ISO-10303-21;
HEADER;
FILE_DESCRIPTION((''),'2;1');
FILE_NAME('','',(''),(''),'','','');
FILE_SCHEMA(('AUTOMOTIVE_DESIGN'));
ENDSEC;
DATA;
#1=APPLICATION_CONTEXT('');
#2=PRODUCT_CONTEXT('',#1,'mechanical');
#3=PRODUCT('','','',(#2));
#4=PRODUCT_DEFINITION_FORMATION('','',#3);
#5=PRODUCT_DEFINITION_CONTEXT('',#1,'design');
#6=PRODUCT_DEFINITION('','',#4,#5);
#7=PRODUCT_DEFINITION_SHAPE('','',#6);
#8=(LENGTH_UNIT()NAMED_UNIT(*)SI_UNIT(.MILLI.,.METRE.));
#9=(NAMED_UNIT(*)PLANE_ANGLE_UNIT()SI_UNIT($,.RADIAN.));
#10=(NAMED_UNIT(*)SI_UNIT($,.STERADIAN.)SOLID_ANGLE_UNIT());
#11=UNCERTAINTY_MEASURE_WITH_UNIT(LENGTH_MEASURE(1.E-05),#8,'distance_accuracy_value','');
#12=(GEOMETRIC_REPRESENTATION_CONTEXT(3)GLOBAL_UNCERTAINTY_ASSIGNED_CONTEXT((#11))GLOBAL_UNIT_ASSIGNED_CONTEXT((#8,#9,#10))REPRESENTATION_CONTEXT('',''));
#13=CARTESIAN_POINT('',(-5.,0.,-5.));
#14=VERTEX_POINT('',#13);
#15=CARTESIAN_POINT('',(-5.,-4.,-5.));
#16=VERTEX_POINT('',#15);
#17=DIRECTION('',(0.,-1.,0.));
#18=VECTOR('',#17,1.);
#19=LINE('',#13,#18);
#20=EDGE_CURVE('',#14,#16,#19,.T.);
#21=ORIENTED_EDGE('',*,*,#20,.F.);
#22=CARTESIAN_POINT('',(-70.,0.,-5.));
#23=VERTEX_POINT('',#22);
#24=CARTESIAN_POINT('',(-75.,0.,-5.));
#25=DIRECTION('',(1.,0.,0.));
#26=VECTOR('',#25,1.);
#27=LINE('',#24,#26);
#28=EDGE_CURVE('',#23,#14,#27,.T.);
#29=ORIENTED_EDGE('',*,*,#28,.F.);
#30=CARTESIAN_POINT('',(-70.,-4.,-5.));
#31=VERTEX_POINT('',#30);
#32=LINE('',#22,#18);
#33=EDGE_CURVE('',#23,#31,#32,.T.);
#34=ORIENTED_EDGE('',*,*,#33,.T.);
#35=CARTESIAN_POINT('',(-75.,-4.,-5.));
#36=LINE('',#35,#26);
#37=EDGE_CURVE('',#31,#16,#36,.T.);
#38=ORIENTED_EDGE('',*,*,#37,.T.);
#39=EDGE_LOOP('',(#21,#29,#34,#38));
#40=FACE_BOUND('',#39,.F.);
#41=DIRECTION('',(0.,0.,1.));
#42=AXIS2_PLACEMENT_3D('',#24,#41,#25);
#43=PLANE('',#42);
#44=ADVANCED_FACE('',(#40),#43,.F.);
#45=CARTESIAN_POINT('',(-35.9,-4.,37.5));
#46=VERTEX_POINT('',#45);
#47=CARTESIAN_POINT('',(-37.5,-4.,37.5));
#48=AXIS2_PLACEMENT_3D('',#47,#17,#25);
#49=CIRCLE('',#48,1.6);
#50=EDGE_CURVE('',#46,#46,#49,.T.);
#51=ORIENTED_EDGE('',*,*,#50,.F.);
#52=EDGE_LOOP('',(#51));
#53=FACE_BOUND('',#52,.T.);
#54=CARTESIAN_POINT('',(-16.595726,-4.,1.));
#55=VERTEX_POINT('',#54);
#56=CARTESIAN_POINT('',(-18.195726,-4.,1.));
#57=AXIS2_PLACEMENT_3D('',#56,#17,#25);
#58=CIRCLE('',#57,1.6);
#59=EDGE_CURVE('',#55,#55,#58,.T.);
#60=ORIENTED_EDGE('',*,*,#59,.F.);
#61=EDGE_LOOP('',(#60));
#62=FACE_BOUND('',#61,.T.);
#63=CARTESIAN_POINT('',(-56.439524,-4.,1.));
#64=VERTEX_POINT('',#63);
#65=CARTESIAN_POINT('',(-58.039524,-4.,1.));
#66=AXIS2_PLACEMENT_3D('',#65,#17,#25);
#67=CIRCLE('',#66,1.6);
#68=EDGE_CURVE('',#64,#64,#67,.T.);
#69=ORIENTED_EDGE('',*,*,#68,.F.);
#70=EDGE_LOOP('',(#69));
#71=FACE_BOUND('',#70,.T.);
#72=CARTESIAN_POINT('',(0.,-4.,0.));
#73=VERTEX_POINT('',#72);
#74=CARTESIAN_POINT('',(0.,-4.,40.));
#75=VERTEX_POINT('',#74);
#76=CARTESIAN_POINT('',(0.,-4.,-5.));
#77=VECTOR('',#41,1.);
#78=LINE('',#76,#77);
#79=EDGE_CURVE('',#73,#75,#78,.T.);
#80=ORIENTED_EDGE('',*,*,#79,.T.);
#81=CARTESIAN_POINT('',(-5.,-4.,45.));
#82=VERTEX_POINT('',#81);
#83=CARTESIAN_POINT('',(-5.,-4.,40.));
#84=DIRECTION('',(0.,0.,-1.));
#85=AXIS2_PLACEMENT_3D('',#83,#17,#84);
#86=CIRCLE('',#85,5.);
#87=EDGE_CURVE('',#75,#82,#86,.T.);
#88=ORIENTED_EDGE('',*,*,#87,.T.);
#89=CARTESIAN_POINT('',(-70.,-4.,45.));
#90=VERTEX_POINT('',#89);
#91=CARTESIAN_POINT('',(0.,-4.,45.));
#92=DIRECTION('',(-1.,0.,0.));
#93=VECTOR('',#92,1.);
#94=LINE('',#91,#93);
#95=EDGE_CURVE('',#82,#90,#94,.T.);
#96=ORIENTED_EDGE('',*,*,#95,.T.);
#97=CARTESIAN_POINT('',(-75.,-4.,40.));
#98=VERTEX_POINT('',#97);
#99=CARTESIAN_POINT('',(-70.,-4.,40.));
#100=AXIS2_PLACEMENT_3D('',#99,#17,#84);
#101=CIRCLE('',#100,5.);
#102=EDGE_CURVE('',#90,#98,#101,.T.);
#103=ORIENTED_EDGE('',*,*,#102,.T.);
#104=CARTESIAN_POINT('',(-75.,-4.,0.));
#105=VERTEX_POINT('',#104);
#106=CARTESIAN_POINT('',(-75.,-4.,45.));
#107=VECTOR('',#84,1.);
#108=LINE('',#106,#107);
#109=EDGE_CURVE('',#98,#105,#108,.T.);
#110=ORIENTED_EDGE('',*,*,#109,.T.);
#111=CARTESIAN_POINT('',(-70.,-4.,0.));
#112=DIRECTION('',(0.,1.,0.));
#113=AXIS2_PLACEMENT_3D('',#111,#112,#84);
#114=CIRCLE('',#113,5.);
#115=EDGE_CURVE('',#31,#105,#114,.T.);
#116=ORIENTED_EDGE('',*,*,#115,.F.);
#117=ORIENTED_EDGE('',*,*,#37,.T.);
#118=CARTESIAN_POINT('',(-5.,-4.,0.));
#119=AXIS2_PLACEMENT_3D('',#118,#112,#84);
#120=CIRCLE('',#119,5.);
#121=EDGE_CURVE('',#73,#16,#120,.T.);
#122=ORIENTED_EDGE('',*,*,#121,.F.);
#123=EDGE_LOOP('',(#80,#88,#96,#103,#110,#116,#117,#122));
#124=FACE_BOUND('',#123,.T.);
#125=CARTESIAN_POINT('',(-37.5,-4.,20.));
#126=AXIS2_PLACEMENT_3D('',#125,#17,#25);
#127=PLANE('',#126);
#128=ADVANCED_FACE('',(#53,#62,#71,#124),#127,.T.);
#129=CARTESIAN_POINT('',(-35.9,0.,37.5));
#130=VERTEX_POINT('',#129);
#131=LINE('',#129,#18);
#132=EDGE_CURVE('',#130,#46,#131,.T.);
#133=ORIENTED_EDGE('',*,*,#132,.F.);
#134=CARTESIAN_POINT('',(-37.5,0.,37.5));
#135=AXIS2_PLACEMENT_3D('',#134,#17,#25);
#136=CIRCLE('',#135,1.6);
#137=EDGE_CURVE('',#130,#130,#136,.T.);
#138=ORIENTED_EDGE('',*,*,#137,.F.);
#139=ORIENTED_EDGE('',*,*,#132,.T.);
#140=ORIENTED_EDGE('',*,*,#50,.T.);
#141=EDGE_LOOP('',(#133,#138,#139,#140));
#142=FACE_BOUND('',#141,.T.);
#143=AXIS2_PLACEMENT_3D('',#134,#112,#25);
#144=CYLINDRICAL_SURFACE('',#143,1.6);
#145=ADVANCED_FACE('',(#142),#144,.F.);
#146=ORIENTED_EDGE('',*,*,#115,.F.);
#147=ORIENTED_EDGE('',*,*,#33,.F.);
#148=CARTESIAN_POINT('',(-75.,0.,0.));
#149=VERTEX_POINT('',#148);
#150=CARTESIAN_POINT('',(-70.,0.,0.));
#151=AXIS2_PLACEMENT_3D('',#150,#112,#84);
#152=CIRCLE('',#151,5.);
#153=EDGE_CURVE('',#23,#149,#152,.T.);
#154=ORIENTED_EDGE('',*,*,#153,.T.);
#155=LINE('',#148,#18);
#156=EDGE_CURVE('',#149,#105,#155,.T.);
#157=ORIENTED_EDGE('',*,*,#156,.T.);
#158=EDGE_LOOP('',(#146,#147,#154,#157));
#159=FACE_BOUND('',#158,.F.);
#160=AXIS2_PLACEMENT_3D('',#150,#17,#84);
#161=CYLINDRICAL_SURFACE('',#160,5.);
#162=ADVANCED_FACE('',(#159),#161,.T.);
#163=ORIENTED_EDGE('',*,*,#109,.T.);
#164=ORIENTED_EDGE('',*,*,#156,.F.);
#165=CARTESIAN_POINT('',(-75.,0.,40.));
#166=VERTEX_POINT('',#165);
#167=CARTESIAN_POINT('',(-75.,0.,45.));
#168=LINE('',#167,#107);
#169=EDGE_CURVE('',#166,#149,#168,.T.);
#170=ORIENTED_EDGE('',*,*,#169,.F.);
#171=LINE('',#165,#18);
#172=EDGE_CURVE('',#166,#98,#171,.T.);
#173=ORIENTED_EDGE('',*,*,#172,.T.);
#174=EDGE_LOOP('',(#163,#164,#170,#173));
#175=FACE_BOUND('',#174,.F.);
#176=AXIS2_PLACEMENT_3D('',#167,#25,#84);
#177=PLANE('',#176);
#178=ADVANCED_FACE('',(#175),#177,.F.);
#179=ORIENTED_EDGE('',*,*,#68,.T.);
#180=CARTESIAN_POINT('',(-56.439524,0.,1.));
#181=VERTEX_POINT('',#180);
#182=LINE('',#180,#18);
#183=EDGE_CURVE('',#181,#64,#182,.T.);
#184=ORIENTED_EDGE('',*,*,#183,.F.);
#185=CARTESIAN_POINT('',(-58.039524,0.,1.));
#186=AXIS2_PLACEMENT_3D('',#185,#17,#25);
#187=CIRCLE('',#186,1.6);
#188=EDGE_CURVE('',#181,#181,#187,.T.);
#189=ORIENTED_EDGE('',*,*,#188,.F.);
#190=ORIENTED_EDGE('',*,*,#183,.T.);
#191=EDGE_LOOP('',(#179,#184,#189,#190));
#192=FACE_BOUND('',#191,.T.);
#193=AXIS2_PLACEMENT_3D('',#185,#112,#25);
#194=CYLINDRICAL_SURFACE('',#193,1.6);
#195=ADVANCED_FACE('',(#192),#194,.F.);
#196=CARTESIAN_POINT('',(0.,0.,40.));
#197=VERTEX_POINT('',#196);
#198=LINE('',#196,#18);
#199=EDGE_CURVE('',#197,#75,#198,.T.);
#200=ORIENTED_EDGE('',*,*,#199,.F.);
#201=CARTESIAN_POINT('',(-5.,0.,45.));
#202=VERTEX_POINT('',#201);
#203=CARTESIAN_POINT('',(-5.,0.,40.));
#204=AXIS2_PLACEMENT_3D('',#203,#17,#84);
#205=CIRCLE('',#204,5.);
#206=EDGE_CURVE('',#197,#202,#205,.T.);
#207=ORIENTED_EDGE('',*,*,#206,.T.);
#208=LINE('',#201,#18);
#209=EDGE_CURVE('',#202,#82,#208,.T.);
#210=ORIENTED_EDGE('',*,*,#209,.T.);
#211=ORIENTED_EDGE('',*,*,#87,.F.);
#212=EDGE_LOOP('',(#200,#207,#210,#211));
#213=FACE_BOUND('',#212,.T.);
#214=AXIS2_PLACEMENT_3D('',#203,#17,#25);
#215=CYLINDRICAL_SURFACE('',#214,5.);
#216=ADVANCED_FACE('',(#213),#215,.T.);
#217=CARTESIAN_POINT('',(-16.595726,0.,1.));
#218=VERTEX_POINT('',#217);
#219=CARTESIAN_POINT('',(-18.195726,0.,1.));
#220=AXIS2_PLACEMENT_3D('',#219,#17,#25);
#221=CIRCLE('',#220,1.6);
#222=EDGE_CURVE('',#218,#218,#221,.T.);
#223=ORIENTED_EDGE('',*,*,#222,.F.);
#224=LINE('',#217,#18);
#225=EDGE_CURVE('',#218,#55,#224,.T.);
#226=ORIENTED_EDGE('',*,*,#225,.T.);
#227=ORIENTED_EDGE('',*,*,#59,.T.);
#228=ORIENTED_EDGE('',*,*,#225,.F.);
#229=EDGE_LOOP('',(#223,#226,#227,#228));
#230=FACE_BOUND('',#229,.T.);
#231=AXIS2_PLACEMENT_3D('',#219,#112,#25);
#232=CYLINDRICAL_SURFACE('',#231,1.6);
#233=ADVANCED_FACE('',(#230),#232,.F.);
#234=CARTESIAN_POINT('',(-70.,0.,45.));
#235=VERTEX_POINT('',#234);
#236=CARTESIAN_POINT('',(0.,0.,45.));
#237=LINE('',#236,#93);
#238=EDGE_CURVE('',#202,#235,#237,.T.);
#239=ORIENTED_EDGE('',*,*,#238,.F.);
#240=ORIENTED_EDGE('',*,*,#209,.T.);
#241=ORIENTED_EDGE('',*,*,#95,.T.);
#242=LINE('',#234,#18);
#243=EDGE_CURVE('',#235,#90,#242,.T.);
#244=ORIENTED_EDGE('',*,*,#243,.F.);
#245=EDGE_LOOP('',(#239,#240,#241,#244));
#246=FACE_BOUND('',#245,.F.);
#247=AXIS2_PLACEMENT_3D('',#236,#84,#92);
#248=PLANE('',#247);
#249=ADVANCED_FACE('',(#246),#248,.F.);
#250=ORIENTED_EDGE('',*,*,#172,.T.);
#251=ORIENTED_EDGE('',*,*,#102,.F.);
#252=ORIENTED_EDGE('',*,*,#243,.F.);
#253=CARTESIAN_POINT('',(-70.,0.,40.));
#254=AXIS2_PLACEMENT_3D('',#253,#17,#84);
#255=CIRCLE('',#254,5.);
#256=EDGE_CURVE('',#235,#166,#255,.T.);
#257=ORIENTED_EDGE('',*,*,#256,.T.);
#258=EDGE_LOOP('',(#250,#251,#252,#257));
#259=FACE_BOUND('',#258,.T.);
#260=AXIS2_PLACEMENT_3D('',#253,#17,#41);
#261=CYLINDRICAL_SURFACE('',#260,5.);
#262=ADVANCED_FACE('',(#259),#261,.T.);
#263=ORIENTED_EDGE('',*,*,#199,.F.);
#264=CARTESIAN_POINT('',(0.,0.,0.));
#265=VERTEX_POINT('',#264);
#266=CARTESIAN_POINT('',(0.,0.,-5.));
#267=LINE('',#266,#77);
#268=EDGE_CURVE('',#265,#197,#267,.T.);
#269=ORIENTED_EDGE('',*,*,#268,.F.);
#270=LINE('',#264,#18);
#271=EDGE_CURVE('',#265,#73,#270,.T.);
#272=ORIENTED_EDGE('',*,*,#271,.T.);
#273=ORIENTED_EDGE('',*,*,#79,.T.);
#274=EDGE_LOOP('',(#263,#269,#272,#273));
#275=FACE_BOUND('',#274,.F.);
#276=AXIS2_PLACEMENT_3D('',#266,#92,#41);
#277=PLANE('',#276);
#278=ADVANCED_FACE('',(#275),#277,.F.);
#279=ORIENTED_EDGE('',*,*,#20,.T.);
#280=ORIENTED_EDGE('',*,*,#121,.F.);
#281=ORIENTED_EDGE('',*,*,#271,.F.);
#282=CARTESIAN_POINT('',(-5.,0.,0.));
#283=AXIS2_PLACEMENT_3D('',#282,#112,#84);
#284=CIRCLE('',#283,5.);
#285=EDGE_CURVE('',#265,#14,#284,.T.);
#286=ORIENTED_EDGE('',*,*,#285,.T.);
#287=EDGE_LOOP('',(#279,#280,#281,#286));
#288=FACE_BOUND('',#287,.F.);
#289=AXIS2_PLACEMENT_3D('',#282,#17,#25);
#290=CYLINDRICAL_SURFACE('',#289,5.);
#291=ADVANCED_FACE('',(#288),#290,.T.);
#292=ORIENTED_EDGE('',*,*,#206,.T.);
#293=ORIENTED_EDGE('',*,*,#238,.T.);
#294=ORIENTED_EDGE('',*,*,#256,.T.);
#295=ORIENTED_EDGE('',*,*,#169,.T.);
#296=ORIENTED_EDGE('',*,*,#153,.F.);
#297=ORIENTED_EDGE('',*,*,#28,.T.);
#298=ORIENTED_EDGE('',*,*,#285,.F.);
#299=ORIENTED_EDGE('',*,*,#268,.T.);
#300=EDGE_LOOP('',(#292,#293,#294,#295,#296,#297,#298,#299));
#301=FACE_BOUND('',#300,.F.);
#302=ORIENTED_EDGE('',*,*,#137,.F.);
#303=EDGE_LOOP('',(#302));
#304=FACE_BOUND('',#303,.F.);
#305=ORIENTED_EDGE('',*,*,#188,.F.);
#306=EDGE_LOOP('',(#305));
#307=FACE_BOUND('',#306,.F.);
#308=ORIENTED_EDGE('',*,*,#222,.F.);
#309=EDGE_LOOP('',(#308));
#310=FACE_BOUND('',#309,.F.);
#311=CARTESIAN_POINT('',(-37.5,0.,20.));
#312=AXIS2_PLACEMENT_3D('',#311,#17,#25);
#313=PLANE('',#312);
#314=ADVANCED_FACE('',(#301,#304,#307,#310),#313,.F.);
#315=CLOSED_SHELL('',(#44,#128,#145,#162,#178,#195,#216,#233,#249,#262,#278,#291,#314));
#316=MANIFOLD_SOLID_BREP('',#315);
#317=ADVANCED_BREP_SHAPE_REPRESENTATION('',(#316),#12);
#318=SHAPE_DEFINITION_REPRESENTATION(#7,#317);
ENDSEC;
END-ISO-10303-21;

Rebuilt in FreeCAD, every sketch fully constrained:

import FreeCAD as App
import Part
import Sketcher
from FreeCAD import Vector
Q = App.Units.Quantity


def edges_at(feature, points):
    """Names of the edges that pass closest to the given points."""
    edges = feature.Shape.Edges
    near = lambda p: min(range(len(edges)), key=lambda i: edges[i].distToShape(Part.Vertex(*p))[0])
    return sorted({f"Edge{near(p) + 1}" for p in points})


def add_polygon(sketch, points):
    """Adds a closed chain of lines whose ends are joined by coincident constraints."""
    first, n = sketch.GeometryCount, len(points)
    for a, b in zip(points, points[1:] + points[:1]):
        sketch.addGeometry(Part.LineSegment(App.Vector(*a, 0), App.Vector(*b, 0)), False)
    for i in range(n):
        sketch.addConstraint(Sketcher.Constraint("Coincident", first + i, 2, first + (i + 1) % n, 1))

doc = App.newDocument("Part")
body = doc.addObject("PartDesign::Body", "Body")

# Sketch on XZ plane
sketch1 = body.newObject("Sketcher::SketchObject", "Sketch")
sketch1.AttachmentSupport = (doc.getObject("XZ_Plane"), [""])
sketch1.MapMode = "FlatFace"
add_polygon(sketch1, [(0, -5), (0, 45), (-75, 45), (-75, -5)])  # lines 0-3
sketch1.addGeometry(Part.Circle(Vector(-58, 1, 0), Vector(0, 0, 1), 1.6), False)  # 4
sketch1.addGeometry(Part.Circle(Vector(-18.2, 1, 0), Vector(0, 0, 1), 1.6), False)  # 5
sketch1.addGeometry(Part.Circle(Vector(-37.5, 37.5, 0), Vector(0, 0, 1), 1.6), False)  # 6
sketch1.addConstraint([
    Sketcher.Constraint("Vertical", 0),
    Sketcher.Constraint("Horizontal", 1),
    Sketcher.Constraint("Vertical", 2),
    Sketcher.Constraint("Horizontal", 3),
    Sketcher.Constraint("Equal", 4, 5),
    Sketcher.Constraint("Equal", 5, 6),
    Sketcher.Constraint("PointOnObject", 0, 2, -2),
    Sketcher.Constraint("Horizontal", 4, 3, 5, 3),
    Sketcher.Constraint("Diameter", 4, Q("3.2 mm")),
    Sketcher.Constraint("DistanceX", 1, 2, 1, 1, Q("75 mm")),
    Sketcher.Constraint("DistanceY", 0, 1, 0, 2, Q("50 mm")),
    Sketcher.Constraint("DistanceY", -1, 1, 4, 3, Q("1 mm")),
    Sketcher.Constraint("DistanceY", -1, 1, 0, 2, Q("45 mm")),
    Sketcher.Constraint("DistanceX", 6, 3, -1, 1, Q("37.5 mm")),
    Sketcher.Constraint("DistanceY", -1, 1, 6, 3, Q("37.5 mm")),
    Sketcher.Constraint("DistanceX", 4, 3, -1, 1, Q("58.039524 mm")),
    Sketcher.Constraint("DistanceX", 5, 3, -1, 1, Q("18.195726 mm")),
])
pad1 = body.newObject("PartDesign::Pad", "Pad")
pad1.Profile = sketch1
pad1.Length = 4
doc.recompute()

fillet = body.newObject("PartDesign::Fillet", "Fillet")
fillet.Base = (pad1, edges_at(pad1, [
    (-75, -2, 45),
    (0, -2, 45),
    (0, -2, -5),
    (-75, -2, -5),
]))
fillet.Radius = 5

doc.recompute()
